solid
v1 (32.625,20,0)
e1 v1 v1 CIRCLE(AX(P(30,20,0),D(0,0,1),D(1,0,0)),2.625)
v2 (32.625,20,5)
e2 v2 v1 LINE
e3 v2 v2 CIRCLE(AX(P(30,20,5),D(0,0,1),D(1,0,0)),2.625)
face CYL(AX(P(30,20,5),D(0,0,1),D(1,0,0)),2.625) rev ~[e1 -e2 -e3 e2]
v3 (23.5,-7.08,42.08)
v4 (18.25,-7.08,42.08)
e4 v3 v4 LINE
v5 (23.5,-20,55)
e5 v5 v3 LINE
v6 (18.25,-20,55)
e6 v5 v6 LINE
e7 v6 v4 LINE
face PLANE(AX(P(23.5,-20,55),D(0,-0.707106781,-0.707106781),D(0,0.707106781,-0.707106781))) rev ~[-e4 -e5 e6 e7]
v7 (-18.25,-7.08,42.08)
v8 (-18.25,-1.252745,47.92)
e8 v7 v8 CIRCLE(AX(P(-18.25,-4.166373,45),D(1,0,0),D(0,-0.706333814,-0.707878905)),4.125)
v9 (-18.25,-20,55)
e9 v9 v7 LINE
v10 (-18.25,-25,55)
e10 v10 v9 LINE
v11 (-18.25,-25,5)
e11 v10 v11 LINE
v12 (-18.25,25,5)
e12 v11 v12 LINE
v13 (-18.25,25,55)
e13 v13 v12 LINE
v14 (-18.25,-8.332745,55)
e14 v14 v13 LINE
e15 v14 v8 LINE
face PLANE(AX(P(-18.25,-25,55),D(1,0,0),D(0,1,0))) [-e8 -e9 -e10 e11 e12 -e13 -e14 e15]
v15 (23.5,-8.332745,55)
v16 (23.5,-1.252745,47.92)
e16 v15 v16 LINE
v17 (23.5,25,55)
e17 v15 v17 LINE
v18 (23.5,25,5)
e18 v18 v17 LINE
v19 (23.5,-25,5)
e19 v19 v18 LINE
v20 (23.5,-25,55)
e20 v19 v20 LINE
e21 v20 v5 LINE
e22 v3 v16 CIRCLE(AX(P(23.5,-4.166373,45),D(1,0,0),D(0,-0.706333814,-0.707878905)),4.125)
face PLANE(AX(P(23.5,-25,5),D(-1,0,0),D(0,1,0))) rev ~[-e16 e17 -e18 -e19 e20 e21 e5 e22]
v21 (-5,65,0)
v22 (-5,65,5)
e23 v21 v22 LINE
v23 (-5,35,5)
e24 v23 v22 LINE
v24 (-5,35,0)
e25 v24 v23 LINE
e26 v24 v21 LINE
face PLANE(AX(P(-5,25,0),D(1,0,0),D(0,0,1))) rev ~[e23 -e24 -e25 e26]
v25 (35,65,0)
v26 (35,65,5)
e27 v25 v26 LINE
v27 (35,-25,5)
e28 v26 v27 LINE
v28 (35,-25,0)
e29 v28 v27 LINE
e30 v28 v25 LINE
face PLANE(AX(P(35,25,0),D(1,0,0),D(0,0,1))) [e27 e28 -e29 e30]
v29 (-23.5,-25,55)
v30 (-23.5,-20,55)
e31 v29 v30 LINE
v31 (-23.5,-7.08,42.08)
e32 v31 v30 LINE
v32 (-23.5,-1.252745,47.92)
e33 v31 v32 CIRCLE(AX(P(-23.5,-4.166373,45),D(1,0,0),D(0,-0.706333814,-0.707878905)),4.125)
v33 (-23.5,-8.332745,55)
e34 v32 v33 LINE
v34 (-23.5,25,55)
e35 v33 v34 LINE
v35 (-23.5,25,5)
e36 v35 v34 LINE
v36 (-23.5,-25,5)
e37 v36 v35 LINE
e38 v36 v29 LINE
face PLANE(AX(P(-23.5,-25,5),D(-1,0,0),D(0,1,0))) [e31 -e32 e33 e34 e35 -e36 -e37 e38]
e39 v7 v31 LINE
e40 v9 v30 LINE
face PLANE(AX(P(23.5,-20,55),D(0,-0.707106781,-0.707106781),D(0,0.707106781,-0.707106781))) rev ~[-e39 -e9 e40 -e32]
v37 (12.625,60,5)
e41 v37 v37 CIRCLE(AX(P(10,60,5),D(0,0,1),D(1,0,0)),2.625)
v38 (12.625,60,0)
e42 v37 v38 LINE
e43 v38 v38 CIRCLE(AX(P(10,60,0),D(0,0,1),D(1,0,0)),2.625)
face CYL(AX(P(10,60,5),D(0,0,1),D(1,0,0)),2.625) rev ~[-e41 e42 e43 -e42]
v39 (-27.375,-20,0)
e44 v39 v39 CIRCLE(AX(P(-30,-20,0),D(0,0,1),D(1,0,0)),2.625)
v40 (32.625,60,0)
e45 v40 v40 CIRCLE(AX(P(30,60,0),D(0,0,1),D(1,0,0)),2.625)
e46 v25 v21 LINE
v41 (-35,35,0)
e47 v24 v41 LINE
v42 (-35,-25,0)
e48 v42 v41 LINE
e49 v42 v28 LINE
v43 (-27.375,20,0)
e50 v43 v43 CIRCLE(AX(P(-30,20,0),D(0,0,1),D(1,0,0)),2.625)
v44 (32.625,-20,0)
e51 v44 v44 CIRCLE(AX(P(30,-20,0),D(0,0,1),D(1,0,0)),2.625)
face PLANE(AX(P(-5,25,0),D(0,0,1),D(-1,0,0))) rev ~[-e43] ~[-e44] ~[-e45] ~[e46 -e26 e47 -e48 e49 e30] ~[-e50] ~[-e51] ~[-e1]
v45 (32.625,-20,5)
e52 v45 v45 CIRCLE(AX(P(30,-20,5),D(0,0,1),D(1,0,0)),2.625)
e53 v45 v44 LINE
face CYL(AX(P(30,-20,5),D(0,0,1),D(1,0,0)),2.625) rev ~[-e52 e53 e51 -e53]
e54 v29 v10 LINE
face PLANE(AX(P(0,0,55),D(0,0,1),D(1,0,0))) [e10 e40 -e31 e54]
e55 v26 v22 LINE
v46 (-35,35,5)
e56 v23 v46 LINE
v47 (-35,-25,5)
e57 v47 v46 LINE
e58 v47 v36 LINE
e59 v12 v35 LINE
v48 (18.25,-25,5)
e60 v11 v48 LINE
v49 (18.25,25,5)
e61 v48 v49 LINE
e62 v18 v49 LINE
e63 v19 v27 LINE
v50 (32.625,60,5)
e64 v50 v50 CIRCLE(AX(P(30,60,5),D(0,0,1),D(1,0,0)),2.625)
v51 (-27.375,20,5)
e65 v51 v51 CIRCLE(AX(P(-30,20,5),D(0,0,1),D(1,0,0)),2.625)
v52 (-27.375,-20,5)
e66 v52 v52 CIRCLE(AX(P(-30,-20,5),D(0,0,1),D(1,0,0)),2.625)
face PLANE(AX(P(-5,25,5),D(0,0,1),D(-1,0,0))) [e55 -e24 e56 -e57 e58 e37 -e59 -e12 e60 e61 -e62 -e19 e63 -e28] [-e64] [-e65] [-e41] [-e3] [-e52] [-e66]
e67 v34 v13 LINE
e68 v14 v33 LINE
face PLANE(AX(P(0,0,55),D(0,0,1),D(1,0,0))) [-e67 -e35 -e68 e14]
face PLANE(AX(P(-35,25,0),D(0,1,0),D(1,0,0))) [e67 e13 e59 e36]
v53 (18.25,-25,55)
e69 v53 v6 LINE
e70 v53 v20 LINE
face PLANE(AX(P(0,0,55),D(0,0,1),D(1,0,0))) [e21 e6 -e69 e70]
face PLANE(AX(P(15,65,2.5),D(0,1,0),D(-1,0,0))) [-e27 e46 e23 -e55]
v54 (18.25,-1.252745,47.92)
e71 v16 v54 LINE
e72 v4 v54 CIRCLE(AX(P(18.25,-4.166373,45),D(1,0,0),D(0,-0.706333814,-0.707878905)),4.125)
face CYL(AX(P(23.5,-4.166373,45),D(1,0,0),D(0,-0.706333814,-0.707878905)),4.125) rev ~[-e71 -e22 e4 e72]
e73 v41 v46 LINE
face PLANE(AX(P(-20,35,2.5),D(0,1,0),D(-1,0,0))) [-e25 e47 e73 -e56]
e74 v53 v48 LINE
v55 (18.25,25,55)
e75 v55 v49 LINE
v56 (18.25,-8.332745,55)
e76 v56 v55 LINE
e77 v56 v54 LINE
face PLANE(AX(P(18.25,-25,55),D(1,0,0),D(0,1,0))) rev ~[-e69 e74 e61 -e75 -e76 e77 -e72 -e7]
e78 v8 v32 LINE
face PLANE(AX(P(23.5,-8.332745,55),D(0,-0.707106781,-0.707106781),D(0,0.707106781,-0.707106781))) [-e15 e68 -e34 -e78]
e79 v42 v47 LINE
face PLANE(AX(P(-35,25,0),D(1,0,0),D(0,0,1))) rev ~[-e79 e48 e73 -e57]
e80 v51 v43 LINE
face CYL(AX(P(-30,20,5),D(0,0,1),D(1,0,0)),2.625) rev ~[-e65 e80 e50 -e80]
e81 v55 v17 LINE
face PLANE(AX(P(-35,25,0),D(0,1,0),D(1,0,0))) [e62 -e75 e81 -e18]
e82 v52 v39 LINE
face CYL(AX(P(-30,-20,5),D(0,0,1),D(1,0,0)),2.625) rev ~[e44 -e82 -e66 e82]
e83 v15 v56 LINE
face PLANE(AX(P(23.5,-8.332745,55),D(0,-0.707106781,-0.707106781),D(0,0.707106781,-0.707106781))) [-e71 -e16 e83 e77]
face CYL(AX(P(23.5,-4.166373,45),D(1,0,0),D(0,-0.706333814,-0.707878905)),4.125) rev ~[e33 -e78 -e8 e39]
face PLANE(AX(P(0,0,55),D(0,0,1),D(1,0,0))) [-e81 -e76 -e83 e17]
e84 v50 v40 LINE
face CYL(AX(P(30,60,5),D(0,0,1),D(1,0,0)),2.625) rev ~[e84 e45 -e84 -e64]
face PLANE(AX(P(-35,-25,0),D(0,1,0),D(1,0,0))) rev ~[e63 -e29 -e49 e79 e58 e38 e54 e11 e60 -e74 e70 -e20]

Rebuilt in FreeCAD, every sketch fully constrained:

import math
import FreeCAD as App
import Part
import Sketcher
Q = App.Units.Quantity


def add_polygon(sketch, points):
    """Adds a closed chain of lines whose ends are joined by coincident constraints."""
    first, n = sketch.GeometryCount, len(points)
    for a, b in zip(points, points[1:] + points[:1]):
        sketch.addGeometry(Part.LineSegment(App.Vector(*a, 0), App.Vector(*b, 0)), False)
    for i in range(n):
        sketch.addConstraint(Sketcher.Constraint("Coincident", first + i, 2, first + (i + 1) % n, 1))

doc = App.newDocument("Part")
params = doc.addObject("Spreadsheet::Sheet", "Params")
for row, (alias, value) in enumerate([
    ("sketch1_width", "70 mm"),
    ("sketch1_height", "50 mm"),
    ("pad1_length", "5 mm"),
    ("sketch2_diameter", "5.25 mm"),
    ("pocket1_length", "5 mm"),
    ("sketch3_width", "47 mm"),
    ("sketch3_height", "50 mm"),
    ("pad2_length", "50 mm"),
    ("sketch4_height", "50 mm"),
    ("sketch4_width", "36.5 mm"),
    ("pocket2_length", "50 mm"),
    ("pocket3_length", "40 mm"),
    ("pocket4_length", "50 mm"),
    ("sketch7_width", "40 mm"),
    ("sketch7_height", "5 mm"),
    ("pad3_length", "40 mm"),
    ("sketch8_diameter", "5.25 mm"),
    ("pocket5_length", "5 mm"),
    ("sketch9_width", "30 mm"),
    ("sketch9_height", "5 mm"),
    ("pad4_length", "10 mm"),
], start=1):
    params.set(f"A{row}", alias)
    params.set(f"B{row}", "=" + value)
    params.setAlias(f"B{row}", alias)

body = doc.addObject("PartDesign::Body", "Body")

sketch1 = body.newObject("Sketcher::SketchObject", "Sketch")
sketch1.AttachmentSupport = (doc.getObject("XY_Plane"), [""])
sketch1.MapMode = "FlatFace"
add_polygon(sketch1, [(-35, 25), (-35, -25), (35, -25), (35, 25)])
sketch1.addConstraint(Sketcher.Constraint("Vertical", 0))
sketch1.addConstraint(Sketcher.Constraint("Horizontal", 1))
sketch1.addConstraint(Sketcher.Constraint("Vertical", 2))
sketch1.addConstraint(Sketcher.Constraint("Horizontal", 3))
sketch1.addConstraint(Sketcher.Constraint("Symmetric", 0, 2, 2, 2, -1, 1))
sketch1.addConstraint(Sketcher.Constraint("DistanceX", 1, 1, 1, 2, 70.0))
sketch1.addConstraint(Sketcher.Constraint("DistanceY", 0, 2, 0, 1, 50.0))
sketch1.setExpression("Constraints[9]", "Params.sketch1_width")
sketch1.setExpression("Constraints[10]", "Params.sketch1_height")
pad1 = body.newObject("PartDesign::Pad", "Pad")
pad1.Profile = sketch1
pad1.setExpression("Length", "Params.pad1_length")

sketch2 = body.newObject("Sketcher::SketchObject", "Sketch001")
sketch2.AttachmentSupport = (doc.getObject("XY_Plane"), [""])
sketch2.MapMode = "FlatFace"
sketch2.AttachmentOffset = App.Placement(App.Vector(0, 0, 5), App.Rotation())
sketch2.addGeometry(Part.Circle(App.Vector(-30, 20, 0), App.Vector(0, 0, 1), 2.6), False)
sketch2.addGeometry(Part.Circle(App.Vector(30, 20, 0), App.Vector(0, 0, 1), 2.6), False)
sketch2.addGeometry(Part.Circle(App.Vector(30, -20, 0), App.Vector(0, 0, 1), 2.6), False)
sketch2.addGeometry(Part.Circle(App.Vector(-30, -20, 0), App.Vector(0, 0, 1), 2.6), False)
sketch2.addConstraint(Sketcher.Constraint("Equal", 0, 1))
sketch2.addConstraint(Sketcher.Constraint("Equal", 1, 2))
sketch2.addConstraint(Sketcher.Constraint("Equal", 2, 3))
sketch2.addConstraint(Sketcher.Constraint("Symmetric", 0, 3, 2, 3, -1, 1))
sketch2.addConstraint(Sketcher.Constraint("Symmetric", 1, 3, 3, 3, -1, 1))
sketch2.addConstraint(Sketcher.Constraint("Symmetric", 0, 3, 1, 3, -2))
sketch2.addConstraint(Sketcher.Constraint("Diameter", 0, 5.25))
sketch2.addConstraint(Sketcher.Constraint("DistanceX", 0, 3, -1, 1, 30.0))
sketch2.addConstraint(Sketcher.Constraint("DistanceY", -1, 1, 0, 3, 20.0))
sketch2.setExpression("Constraints[6]", "Params.sketch2_diameter")
pocket1 = body.newObject("PartDesign::Pocket", "Pocket")
pocket1.Profile = sketch2
pocket1.setExpression("Length", "Params.pocket1_length")

sketch3 = body.newObject("Sketcher::SketchObject", "Sketch002")
sketch3.AttachmentSupport = (doc.getObject("XY_Plane"), [""])
sketch3.MapMode = "FlatFace"
sketch3.AttachmentOffset = App.Placement(App.Vector(0, 0, 5), App.Rotation())
add_polygon(sketch3, [(-24, 25), (-24, -25), (24, -25), (24, 25)])
sketch3.addConstraint(Sketcher.Constraint("Vertical", 0))
sketch3.addConstraint(Sketcher.Constraint("Horizontal", 1))
sketch3.addConstraint(Sketcher.Constraint("Vertical", 2))
sketch3.addConstraint(Sketcher.Constraint("Horizontal", 3))
sketch3.addConstraint(Sketcher.Constraint("Symmetric", 0, 2, 2, 2, -1, 1))
sketch3.addConstraint(Sketcher.Constraint("DistanceX", 1, 1, 1, 2, 47.0))
sketch3.addConstraint(Sketcher.Constraint("DistanceY", 0, 2, 0, 1, 50.0))
sketch3.setExpression("Constraints[9]", "Params.sketch3_width")
sketch3.setExpression("Constraints[10]", "Params.sketch3_height")
pad2 = body.newObject("PartDesign::Pad", "Pad001")
pad2.Profile = sketch3
pad2.setExpression("Length", "Params.pad2_length")

sketch4 = body.newObject("Sketcher::SketchObject", "Sketch003")
sketch4.AttachmentSupport = (doc.getObject("XY_Plane"), [""])
sketch4.MapMode = "FlatFace"
sketch4.AttachmentOffset = App.Placement(App.Vector(0, 0, 55), App.Rotation())
add_polygon(sketch4, [(-18, 25), (-18, -25), (18, -25), (18, 25)])
sketch4.addConstraint(Sketcher.Constraint("Vertical", 0))
sketch4.addConstraint(Sketcher.Constraint("Horizontal", 1))
sketch4.addConstraint(Sketcher.Constraint("Vertical", 2))
sketch4.addConstraint(Sketcher.Constraint("Horizontal", 3))
sketch4.addConstraint(Sketcher.Constraint("Symmetric", 0, 2, 2, 2, -1, 1))
sketch4.addConstraint(Sketcher.Constraint("DistanceY", 0, 2, 0, 1, 50.0))
sketch4.addConstraint(Sketcher.Constraint("DistanceX", 1, 1, 1, 2, 36.5))
sketch4.setExpression("Constraints[9]", "Params.sketch4_height")
sketch4.setExpression("Constraints[10]", "Params.sketch4_width")
pocket2 = body.newObject("PartDesign::Pocket", "Pocket001")
pocket2.Profile = sketch4
pocket2.setExpression("Length", "Params.pocket2_length")

sketch5 = body.newObject("Sketcher::SketchObject", "Sketch004")
sketch5.AttachmentSupport = (doc.getObject("YZ_Plane"), [""])
sketch5.MapMode = "FlatFace"
sketch5.AttachmentOffset = App.Placement(App.Vector(0, 0, 23.5), App.Rotation())
sketch5.addGeometry(Part.LineSegment(App.Vector(-1.3, 47.9, 0), App.Vector(-8.3, 55, 0)), False)
sketch5.addGeometry(Part.LineSegment(App.Vector(-8.3, 55, 0), App.Vector(-20, 55, 0)), False)
sketch5.addGeometry(Part.LineSegment(App.Vector(-20, 55, 0), App.Vector(-7.1, 42.1, 0)), False)
sketch5.addGeometry(Part.ArcOfCircle(Part.Circle(App.Vector(-4.2, 45, 0), App.Vector(0, 0, 1), 4.1), math.radians(-135), math.radians(45)), False)
sketch5.addConstraint(Sketcher.Constraint("Coincident", 0, 2, 1, 1))
sketch5.addConstraint(Sketcher.Constraint("Coincident", 1, 2, 2, 1))
sketch5.addConstraint(Sketcher.Constraint("Coincident", 2, 2, 3, 1))
sketch5.addConstraint(Sketcher.Constraint("Coincident", 3, 2, 0, 1))
sketch5.addConstraint(Sketcher.Constraint("Horizontal", 1))
sketch5.addConstraint(Sketcher.Constraint("Parallel", 0, 2))
sketch5.addConstraint(Sketcher.Constraint("Angle", 0, Q("135 deg")))
sketch5.addConstraint(Sketcher.Constraint("DistanceY", -1, 1, 3, 3, 45.0))
sketch5.addConstraint(Sketcher.Constraint("DistanceY", -1, 1, 0, 2, 55.0))
sketch5.addConstraint(Sketcher.Constraint("DistanceX", 1, 2, -1, 1, 20.0))
sketch5.addConstraint(Sketcher.Constraint("Radius", 3, 4.125))
sketch5.addConstraint(Sketcher.Constraint("DistanceX", 2, 2, -1, 1, 7.08))
sketch5.addConstraint(Sketcher.Constraint("DistanceY", -1, 1, 3, 2, 47.92))
pocket3 = body.newObject("PartDesign::Pocket", "Pocket002")
pocket3.Profile = sketch5
pocket3.setExpression("Length", "Params.pocket3_length")

sketch6 = body.newObject("Sketcher::SketchObject", "Sketch005")
sketch6.AttachmentSupport = (doc.getObject("YZ_Plane"), [""])
sketch6.MapMode = "FlatFace"
sketch6.AttachmentOffset = App.Placement(App.Vector(0, 0, 23.5), App.Rotation())
sketch6.addGeometry(Part.LineSegment(App.Vector(-1.3, 47.9, 0), App.Vector(-8.3, 55, 0)), False)
sketch6.addGeometry(Part.LineSegment(App.Vector(-8.3, 55, 0), App.Vector(-20, 55, 0)), False)
sketch6.addGeometry(Part.LineSegment(App.Vector(-20, 55, 0), App.Vector(-7.1, 42.1, 0)), False)
sketch6.addGeometry(Part.ArcOfCircle(Part.Circle(App.Vector(-4.2, 45, 0), App.Vector(0, 0, 1), 4.1), math.radians(-135), math.radians(45)), False)
sketch6.addConstraint(Sketcher.Constraint("Coincident", 0, 2, 1, 1))
sketch6.addConstraint(Sketcher.Constraint("Coincident", 1, 2, 2, 1))
sketch6.addConstraint(Sketcher.Constraint("Coincident", 2, 2, 3, 1))
sketch6.addConstraint(Sketcher.Constraint("Coincident", 3, 2, 0, 1))
sketch6.addConstraint(Sketcher.Constraint("Horizontal", 1))
sketch6.addConstraint(Sketcher.Constraint("Parallel", 0, 2))
sketch6.addConstraint(Sketcher.Constraint("Angle", 0, Q("135 deg")))
sketch6.addConstraint(Sketcher.Constraint("DistanceY", -1, 1, 3, 3, 45.0))
sketch6.addConstraint(Sketcher.Constraint("DistanceY", -1, 1, 0, 2, 55.0))
sketch6.addConstraint(Sketcher.Constraint("DistanceX", 1, 2, -1, 1, 20.0))
sketch6.addConstraint(Sketcher.Constraint("Radius", 3, 4.125))
sketch6.addConstraint(Sketcher.Constraint("DistanceX", 2, 2, -1, 1, 7.08))
sketch6.addConstraint(Sketcher.Constraint("DistanceY", -1, 1, 3, 2, 47.92))
pocket4 = body.newObject("PartDesign::Pocket", "Pocket003")
pocket4.Profile = sketch6
pocket4.setExpression("Length", "Params.pocket4_length")

sketch7 = body.newObject("Sketcher::SketchObject", "Sketch006")
sketch7.AttachmentSupport = (doc.getObject("XZ_Plane"), [""])
sketch7.MapMode = "FlatFace"
sketch7.AttachmentOffset = App.Placement(App.Vector(0, 0, -25), App.Rotation())
add_polygon(sketch7, [(35, 5), (35, 0), (-5, 0), (-5, 5)])
sketch7.addConstraint(Sketcher.Constraint("Vertical", 0))
sketch7.addConstraint(Sketcher.Constraint("Horizontal", 1))
sketch7.addConstraint(Sketcher.Constraint("Vertical", 2))
sketch7.addConstraint(Sketcher.Constraint("Horizontal", 3))
sketch7.addConstraint(Sketcher.Constraint("PointOnObject", 0, 2, -1))
sketch7.addConstraint(Sketcher.Constraint("DistanceX", 1, 2, 1, 1, 40.0))
sketch7.addConstraint(Sketcher.Constraint("DistanceY", 0, 2, 0, 1, 5.0))
sketch7.addConstraint(Sketcher.Constraint("DistanceX", -1, 1, 0, 2, 35.0))
sketch7.setExpression("Constraints[9]", "Params.sketch7_width")
sketch7.setExpression("Constraints[10]", "Params.sketch7_height")
pad3 = body.newObject("PartDesign::Pad", "Pad002")
pad3.Profile = sketch7
pad3.setExpression("Length", "Params.pad3_length")
pad3.Reversed = True

sketch8 = body.newObject("Sketcher::SketchObject", "Sketch007")
sketch8.AttachmentSupport = (doc.getObject("XY_Plane"), [""])
sketch8.MapMode = "FlatFace"
sketch8.AttachmentOffset = App.Placement(App.Vector(0, 0, 5), App.Rotation())
sketch8.addGeometry(Part.Circle(App.Vector(30, 60, 0), App.Vector(0, 0, 1), 2.6), False)
sketch8.addGeometry(Part.Circle(App.Vector(10, 60, 0), App.Vector(0, 0, 1), 2.6), False)
sketch8.addConstraint(Sketcher.Constraint("Equal", 0, 1))
sketch8.addConstraint(Sketcher.Constraint("Horizontal", 0, 3, 1, 3))
sketch8.addConstraint(Sketcher.Constraint("Diameter", 0, 5.25))
sketch8.addConstraint(Sketcher.Constraint("DistanceX", -1, 1, 0, 3, 30.0))
sketch8.addConstraint(Sketcher.Constraint("DistanceY", -1, 1, 0, 3, 60.0))
sketch8.addConstraint(Sketcher.Constraint("DistanceX", -1, 1, 1, 3, 10.0))
sketch8.setExpression("Constraints[2]", "Params.sketch8_diameter")
pocket5 = body.newObject("PartDesign::Pocket", "Pocket004")
pocket5.Profile = sketch8
pocket5.setExpression("Length", "Params.pocket5_length")

sketch9 = body.newObject("Sketcher::SketchObject", "Sketch008")
sketch9.AttachmentSupport = (doc.getObject("XZ_Plane"), [""])
sketch9.MapMode = "FlatFace"
sketch9.AttachmentOffset = App.Placement(App.Vector(0, 0, -25), App.Rotation())
add_polygon(sketch9, [(-5, 5), (-5, 0), (-35, 0), (-35, 5)])
sketch9.addConstraint(Sketcher.Constraint("Vertical", 0))
sketch9.addConstraint(Sketcher.Constraint("Horizontal", 1))
sketch9.addConstraint(Sketcher.Constraint("Vertical", 2))
sketch9.addConstraint(Sketcher.Constraint("Horizontal", 3))
sketch9.addConstraint(Sketcher.Constraint("PointOnObject", 0, 2, -1))
sketch9.addConstraint(Sketcher.Constraint("DistanceX", 1, 2, 1, 1, 30.0))
sketch9.addConstraint(Sketcher.Constraint("DistanceY", 0, 2, 0, 1, 5.0))
sketch9.addConstraint(Sketcher.Constraint("DistanceX", 0, 2, -1, 1, 5.0))
sketch9.setExpression("Constraints[9]", "Params.sketch9_width")
sketch9.setExpression("Constraints[10]", "Params.sketch9_height")
pad4 = body.newObject("PartDesign::Pad", "Pad003")
pad4.Profile = sketch9
pad4.setExpression("Length", "Params.pad4_length")
pad4.Reversed = True

doc.recompute()
